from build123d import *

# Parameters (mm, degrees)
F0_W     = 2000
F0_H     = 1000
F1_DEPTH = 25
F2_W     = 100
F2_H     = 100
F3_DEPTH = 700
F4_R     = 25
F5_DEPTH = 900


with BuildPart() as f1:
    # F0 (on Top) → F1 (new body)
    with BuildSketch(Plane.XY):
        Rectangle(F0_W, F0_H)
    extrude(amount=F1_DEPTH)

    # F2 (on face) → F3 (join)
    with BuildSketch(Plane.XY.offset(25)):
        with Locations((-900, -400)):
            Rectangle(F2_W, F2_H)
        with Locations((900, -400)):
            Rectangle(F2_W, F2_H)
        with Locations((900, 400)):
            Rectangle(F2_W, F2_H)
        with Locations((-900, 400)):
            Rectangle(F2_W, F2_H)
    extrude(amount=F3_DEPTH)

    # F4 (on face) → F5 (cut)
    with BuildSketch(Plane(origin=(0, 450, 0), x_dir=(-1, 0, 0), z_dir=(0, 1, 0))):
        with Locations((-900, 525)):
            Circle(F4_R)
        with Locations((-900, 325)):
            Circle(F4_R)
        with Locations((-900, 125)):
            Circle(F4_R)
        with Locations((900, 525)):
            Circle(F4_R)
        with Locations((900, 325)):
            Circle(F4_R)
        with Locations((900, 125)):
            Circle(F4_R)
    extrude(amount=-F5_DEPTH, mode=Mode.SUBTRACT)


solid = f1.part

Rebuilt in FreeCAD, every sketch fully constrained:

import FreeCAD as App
import Part
import Sketcher

V = App.Vector
Q = App.Units.Quantity

doc = App.newDocument("Part")
body = doc.addObject("PartDesign::Body", "Body")

# Sketch on XY plane
sketch1 = body.newObject("Sketcher::SketchObject", "Sketch")
sketch1.AttachmentSupport = (doc.getObject("XY_Plane"), [""])
sketch1.MapMode = "FlatFace"
sketch1.addGeometry([
    Part.LineSegment(V(-1000, 500, 0), V(-1000, -500, 0)),
    Part.LineSegment(V(-1000, -500, 0), V(1000, -500, 0)),
    Part.LineSegment(V(1000, -500, 0), V(1000, 500, 0)),
    Part.LineSegment(V(1000, 500, 0), V(-1000, 500, 0)),
], False)
sketch1.addConstraint([
    Sketcher.Constraint("Coincident", 0, 2, 1, 1),
    Sketcher.Constraint("Coincident", 1, 2, 2, 1),
    Sketcher.Constraint("Coincident", 2, 2, 3, 1),
    Sketcher.Constraint("Coincident", 3, 2, 0, 1),
    Sketcher.Constraint("Vertical", 0),
    Sketcher.Constraint("Horizontal", 1),
    Sketcher.Constraint("Vertical", 2),
    Sketcher.Constraint("Horizontal", 3),
    Sketcher.Constraint("Symmetric", 0, 2, 2, 2, -1, 1),
    Sketcher.Constraint("DistanceX", 1, 1, 1, 2, Q("2000 mm")),
    Sketcher.Constraint("DistanceY", 0, 2, 0, 1, Q("1000 mm")),
])
pad1 = body.newObject("PartDesign::Pad", "Pad")
pad1.Profile = sketch1
pad1.Length = 25

# Sketch on XY plane
sketch2 = body.newObject("Sketcher::SketchObject", "Sketch001")
sketch2.AttachmentSupport = (doc.getObject("XY_Plane"), [""])
sketch2.MapMode = "FlatFace"
sketch2.AttachmentOffset = App.Placement(V(0, 0, 25), App.Rotation())
sketch2.addGeometry([
    Part.LineSegment(V(-950, -350, 0), V(-950, -450, 0)),  # 0
    Part.LineSegment(V(-950, -450, 0), V(-850, -450, 0)),  # 1
    Part.LineSegment(V(-850, -450, 0), V(-850, -350, 0)),  # 2
    Part.LineSegment(V(-850, -350, 0), V(-950, -350, 0)),  # 3
    Part.LineSegment(V(850, -350, 0), V(850, -450, 0)),  # 4
    Part.LineSegment(V(850, -450, 0), V(950, -450, 0)),  # 5
    Part.LineSegment(V(950, -450, 0), V(950, -350, 0)),  # 6
    Part.LineSegment(V(950, -350, 0), V(850, -350, 0)),  # 7
    Part.LineSegment(V(850, 450, 0), V(850, 350, 0)),  # 8
    Part.LineSegment(V(850, 350, 0), V(950, 350, 0)),  # 9
    Part.LineSegment(V(950, 350, 0), V(950, 450, 0)),  # 10
    Part.LineSegment(V(950, 450, 0), V(850, 450, 0)),  # 11
    Part.LineSegment(V(-950, 450, 0), V(-950, 350, 0)),  # 12
    Part.LineSegment(V(-950, 350, 0), V(-850, 350, 0)),  # 13
    Part.LineSegment(V(-850, 350, 0), V(-850, 450, 0)),  # 14
    Part.LineSegment(V(-850, 450, 0), V(-950, 450, 0)),  # 15
], False)
sketch2.addConstraint([
    Sketcher.Constraint("Coincident", 0, 2, 1, 1),
    Sketcher.Constraint("Coincident", 1, 2, 2, 1),
    Sketcher.Constraint("Coincident", 2, 2, 3, 1),
    Sketcher.Constraint("Coincident", 3, 2, 0, 1),
    Sketcher.Constraint("Coincident", 4, 2, 5, 1),
    Sketcher.Constraint("Coincident", 5, 2, 6, 1),
    Sketcher.Constraint("Coincident", 6, 2, 7, 1),
    Sketcher.Constraint("Coincident", 7, 2, 4, 1),
    Sketcher.Constraint("Coincident", 8, 2, 9, 1),
    Sketcher.Constraint("Coincident", 9, 2, 10, 1),
    Sketcher.Constraint("Coincident", 10, 2, 11, 1),
    Sketcher.Constraint("Coincident", 11, 2, 8, 1),
    Sketcher.Constraint("Coincident", 12, 2, 13, 1),
    Sketcher.Constraint("Coincident", 13, 2, 14, 1),
    Sketcher.Constraint("Coincident", 14, 2, 15, 1),
    Sketcher.Constraint("Coincident", 15, 2, 12, 1),
    Sketcher.Constraint("Vertical", 0),
    Sketcher.Constraint("Horizontal", 1),
    Sketcher.Constraint("Vertical", 2),
    Sketcher.Constraint("Horizontal", 3),
    Sketcher.Constraint("Vertical", 4),
    Sketcher.Constraint("Horizontal", 5),
    Sketcher.Constraint("Vertical", 6),
    Sketcher.Constraint("Horizontal", 7),
    Sketcher.Constraint("Vertical", 8),
    Sketcher.Constraint("Horizontal", 9),
    Sketcher.Constraint("Vertical", 10),
    Sketcher.Constraint("Horizontal", 11),
    Sketcher.Constraint("Vertical", 12),
    Sketcher.Constraint("Horizontal", 13),
    Sketcher.Constraint("Vertical", 14),
    Sketcher.Constraint("Horizontal", 15),
    Sketcher.Constraint("Symmetric", 2, 2, 8, 2, -1, 1),
    Sketcher.Constraint("Symmetric", 0, 2, 10, 2, -1, 1),
    Sketcher.Constraint("Symmetric", 6, 2, 12, 2, -1, 1),
    Sketcher.Constraint("Symmetric", 4, 2, 14, 2, -1, 1),
    Sketcher.Constraint("Symmetric", 1, 2, 4, 2, -2),
    Sketcher.Constraint("Symmetric", 3, 2, 6, 2, -2),
    Sketcher.Constraint("Equal", 15, 0),
    Sketcher.Constraint("DistanceX", 1, 1, 1, 2, Q("100 mm")),
    Sketcher.Constraint("DistanceX", 0, 2, -1, 1, Q("950 mm")),
    Sketcher.Constraint("DistanceY", 0, 2, -1, 1, Q("450 mm")),
])
pad2 = body.newObject("PartDesign::Pad", "Pad001")
pad2.Profile = sketch2
pad2.Length = 700

# Sketch on XZ plane
sketch3 = body.newObject("Sketcher::SketchObject", "Sketch002")
sketch3.AttachmentSupport = (doc.getObject("XZ_Plane"), [""])
sketch3.MapMode = "FlatFace"
sketch3.AttachmentOffset = App.Placement(V(0, 0, -450), App.Rotation())
sketch3.addGeometry([
    Part.Circle(V(900, 525, 0), V(0, 0, 1), 25),  # 0
    Part.Circle(V(900, 325, 0), V(0, 0, 1), 25),  # 1
    Part.Circle(V(900, 125, 0), V(0, 0, 1), 25),  # 2
    Part.Circle(V(-900, 525, 0), V(0, 0, 1), 25),  # 3
    Part.Circle(V(-900, 325, 0), V(0, 0, 1), 25),  # 4
    Part.Circle(V(-900, 125, 0), V(0, 0, 1), 25),  # 5
], False)
sketch3.addConstraint([
    Sketcher.Constraint("Equal", 0, 1),
    Sketcher.Constraint("Equal", 1, 2),
    Sketcher.Constraint("Equal", 2, 3),
    Sketcher.Constraint("Equal", 3, 4),
    Sketcher.Constraint("Equal", 4, 5),
    Sketcher.Constraint("Symmetric", 0, 3, 3, 3, -2),
    Sketcher.Constraint("Symmetric", 1, 3, 4, 3, -2),
    Sketcher.Constraint("Symmetric", 2, 3, 5, 3, -2),
    Sketcher.Constraint("Vertical", 0, 3, 1, 3),
    Sketcher.Constraint("Vertical", 1, 3, 2, 3),
    Sketcher.Constraint("Diameter", 0, Q("50 mm")),
    Sketcher.Constraint("DistanceX", -1, 1, 0, 3, Q("900 mm")),
    Sketcher.Constraint("DistanceY", -1, 1, 0, 3, Q("525 mm")),
    Sketcher.Constraint("DistanceY", -1, 1, 1, 3, Q("325 mm")),
    Sketcher.Constraint("DistanceY", -1, 1, 2, 3, Q("125 mm")),
])
pocket1 = body.newObject("PartDesign::Pocket", "Pocket")
pocket1.Profile = sketch3
pocket1.Length = 900
pocket1.Reversed = True

doc.recompute()
